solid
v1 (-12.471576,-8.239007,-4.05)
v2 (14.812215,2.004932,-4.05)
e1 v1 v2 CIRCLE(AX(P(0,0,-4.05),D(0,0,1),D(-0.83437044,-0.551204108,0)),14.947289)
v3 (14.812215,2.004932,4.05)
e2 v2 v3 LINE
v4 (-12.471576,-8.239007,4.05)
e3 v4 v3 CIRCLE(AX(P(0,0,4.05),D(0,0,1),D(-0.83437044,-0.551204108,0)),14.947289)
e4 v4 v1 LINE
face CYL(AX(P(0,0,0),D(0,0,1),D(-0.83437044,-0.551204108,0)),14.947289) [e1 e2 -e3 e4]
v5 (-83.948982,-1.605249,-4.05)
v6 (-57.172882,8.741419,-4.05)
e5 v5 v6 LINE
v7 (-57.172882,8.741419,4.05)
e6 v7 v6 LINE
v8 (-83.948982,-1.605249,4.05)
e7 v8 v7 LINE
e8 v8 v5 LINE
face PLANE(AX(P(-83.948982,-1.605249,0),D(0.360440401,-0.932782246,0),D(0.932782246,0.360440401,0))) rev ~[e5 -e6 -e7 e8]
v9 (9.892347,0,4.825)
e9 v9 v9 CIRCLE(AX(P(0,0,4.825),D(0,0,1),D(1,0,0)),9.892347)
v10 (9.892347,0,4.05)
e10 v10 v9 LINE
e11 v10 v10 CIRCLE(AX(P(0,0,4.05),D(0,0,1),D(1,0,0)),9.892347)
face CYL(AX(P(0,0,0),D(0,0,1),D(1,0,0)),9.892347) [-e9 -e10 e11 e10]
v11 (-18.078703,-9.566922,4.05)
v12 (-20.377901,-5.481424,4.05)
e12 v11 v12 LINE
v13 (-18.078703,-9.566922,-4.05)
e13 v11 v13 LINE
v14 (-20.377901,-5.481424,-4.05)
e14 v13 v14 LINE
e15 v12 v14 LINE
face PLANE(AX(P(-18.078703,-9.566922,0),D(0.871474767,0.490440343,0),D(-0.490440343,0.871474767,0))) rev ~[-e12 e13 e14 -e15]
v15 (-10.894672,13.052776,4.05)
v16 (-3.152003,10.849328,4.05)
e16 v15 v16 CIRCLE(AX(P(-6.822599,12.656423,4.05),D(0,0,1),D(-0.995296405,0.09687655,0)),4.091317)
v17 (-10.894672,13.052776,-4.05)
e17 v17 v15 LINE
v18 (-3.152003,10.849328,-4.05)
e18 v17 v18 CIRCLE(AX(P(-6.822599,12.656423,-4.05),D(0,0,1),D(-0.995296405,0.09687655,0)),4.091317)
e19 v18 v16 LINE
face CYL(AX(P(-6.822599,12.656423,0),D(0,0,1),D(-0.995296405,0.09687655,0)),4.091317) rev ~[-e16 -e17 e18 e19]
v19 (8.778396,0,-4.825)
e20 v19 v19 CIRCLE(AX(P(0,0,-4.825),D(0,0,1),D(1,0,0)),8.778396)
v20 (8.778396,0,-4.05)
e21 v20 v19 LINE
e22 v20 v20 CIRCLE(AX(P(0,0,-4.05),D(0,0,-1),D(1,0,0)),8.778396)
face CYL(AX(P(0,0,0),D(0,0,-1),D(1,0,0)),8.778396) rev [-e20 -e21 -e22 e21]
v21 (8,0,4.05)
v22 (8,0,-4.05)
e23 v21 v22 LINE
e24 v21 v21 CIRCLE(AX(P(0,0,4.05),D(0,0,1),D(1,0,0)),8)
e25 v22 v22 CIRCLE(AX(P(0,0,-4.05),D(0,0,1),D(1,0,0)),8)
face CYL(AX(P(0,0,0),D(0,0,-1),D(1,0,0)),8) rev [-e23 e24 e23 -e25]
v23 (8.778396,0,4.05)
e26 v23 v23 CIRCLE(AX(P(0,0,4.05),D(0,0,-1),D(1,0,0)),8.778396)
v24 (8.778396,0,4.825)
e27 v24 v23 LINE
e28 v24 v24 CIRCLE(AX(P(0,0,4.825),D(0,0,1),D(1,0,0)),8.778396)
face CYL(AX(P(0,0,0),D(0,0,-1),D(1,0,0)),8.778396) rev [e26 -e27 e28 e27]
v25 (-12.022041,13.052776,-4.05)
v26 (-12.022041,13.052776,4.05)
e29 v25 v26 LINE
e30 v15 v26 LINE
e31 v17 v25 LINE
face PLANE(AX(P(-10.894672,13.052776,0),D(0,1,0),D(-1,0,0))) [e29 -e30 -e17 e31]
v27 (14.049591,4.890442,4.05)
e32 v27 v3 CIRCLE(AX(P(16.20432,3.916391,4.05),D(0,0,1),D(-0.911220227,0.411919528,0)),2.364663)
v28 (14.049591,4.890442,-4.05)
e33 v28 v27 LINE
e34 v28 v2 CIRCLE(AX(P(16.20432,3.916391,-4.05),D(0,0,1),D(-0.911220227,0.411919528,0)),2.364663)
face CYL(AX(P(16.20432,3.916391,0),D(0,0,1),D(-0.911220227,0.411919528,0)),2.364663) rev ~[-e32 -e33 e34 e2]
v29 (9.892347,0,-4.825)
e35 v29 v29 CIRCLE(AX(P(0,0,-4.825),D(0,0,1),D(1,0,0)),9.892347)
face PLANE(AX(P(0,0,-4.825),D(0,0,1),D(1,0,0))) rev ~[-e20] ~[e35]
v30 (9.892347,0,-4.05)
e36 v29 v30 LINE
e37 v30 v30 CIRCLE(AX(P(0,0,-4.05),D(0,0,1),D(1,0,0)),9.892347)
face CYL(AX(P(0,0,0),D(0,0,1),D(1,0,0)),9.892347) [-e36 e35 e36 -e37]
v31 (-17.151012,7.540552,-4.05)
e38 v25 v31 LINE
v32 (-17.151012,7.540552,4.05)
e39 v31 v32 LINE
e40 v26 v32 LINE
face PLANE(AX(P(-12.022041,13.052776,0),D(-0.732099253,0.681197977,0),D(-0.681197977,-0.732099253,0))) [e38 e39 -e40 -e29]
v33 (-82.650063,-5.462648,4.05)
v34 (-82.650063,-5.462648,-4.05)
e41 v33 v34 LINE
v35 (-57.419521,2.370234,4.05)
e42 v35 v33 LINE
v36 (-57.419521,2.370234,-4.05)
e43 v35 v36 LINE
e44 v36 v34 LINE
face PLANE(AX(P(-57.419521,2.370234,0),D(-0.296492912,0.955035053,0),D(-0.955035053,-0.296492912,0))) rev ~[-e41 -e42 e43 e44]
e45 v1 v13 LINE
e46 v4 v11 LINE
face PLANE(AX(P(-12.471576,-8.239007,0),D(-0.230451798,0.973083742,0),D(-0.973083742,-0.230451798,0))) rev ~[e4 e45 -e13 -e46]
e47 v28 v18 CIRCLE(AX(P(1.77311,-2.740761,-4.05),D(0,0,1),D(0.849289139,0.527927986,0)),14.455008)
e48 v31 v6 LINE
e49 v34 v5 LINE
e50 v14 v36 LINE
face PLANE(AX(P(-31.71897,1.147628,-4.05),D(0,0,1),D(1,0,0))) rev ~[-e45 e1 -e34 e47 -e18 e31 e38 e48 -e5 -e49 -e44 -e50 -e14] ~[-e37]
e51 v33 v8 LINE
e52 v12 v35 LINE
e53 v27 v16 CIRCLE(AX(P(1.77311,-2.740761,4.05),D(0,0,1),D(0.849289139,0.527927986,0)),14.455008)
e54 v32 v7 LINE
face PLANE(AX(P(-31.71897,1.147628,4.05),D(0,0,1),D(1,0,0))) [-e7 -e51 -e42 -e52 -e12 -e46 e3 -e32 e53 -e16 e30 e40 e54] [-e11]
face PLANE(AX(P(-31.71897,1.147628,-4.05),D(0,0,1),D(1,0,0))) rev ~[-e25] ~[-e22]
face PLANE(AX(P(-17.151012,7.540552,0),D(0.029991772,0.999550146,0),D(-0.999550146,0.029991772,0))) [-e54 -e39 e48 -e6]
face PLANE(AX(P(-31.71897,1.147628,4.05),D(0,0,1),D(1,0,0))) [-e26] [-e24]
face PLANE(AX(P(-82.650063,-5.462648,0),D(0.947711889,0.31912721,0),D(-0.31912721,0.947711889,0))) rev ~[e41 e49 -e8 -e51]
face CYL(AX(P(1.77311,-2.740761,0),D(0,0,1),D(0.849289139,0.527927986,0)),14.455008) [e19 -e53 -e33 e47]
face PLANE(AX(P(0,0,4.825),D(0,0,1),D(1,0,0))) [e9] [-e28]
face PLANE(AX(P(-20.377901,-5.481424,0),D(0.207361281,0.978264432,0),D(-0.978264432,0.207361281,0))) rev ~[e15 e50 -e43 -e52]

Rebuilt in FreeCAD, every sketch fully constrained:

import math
import FreeCAD as App
import Part
import Sketcher
from FreeCAD import Vector
Q = App.Units.Quantity

doc = App.newDocument("Part")
params = doc.addObject("Spreadsheet::Sheet", "Params")
for row, (alias, value) in enumerate([
    ("sketch1_diameter", "16 mm"),
    ("pad1_length", "8.1 mm"),
    ("pad2_length", "9.65 mm"),
], start=1):
    params.set(f"A{row}", alias)
    params.set(f"B{row}", "=" + value)
    params.setAlias(f"B{row}", alias)

body = doc.addObject("PartDesign::Body", "Body")

# Sketch on XY plane
sketch1 = body.newObject("Sketcher::SketchObject", "Sketch")
sketch1.AttachmentSupport = (doc.getObject("XY_Plane"), [""])
sketch1.MapMode = "FlatFace"
sketch1.addGeometry([
    Part.ArcOfCircle(Part.Circle(Vector(0, 0, 0), Vector(0, 0, 1), 14.947289), math.radians(-146.550341), math.radians(7.708516)),  # 0
    Part.ArcOfCircle(Part.Circle(Vector(16.20432, 3.916391, 0), Vector(0, 0, 1), 2.364663), math.radians(155.674526), math.radians(233.934359)),  # 1
    Part.ArcOfCircle(Part.Circle(Vector(1.77311, -2.740761, 0), Vector(0, 0, 1), 14.455008), math.radians(31.865564), math.radians(109.920755)),  # 2
    Part.ArcOfCircle(Part.Circle(Vector(-6.822599, 12.656423, 0), Vector(0, 0, 1), 4.091317), math.radians(174.440663), math.radians(333.788213)),  # 3
    Part.LineSegment(Vector(-10.894672, 13.052776, 0), Vector(-12.022041, 13.052776, 0)),  # 4
    Part.LineSegment(Vector(-12.022041, 13.052776, 0), Vector(-17.151012, 7.540552, 0)),  # 5
    Part.LineSegment(Vector(-17.151012, 7.540552, 0), Vector(-57.172882, 8.741419, 0)),  # 6
    Part.LineSegment(Vector(-57.172882, 8.741419, 0), Vector(-83.948982, -1.605249, 0)),  # 7
    Part.LineSegment(Vector(-83.948982, -1.605249, 0), Vector(-82.650063, -5.462648, 0)),  # 8
    Part.LineSegment(Vector(-82.650063, -5.462648, 0), Vector(-57.419521, 2.370234, 0)),  # 9
    Part.LineSegment(Vector(-57.419521, 2.370234, 0), Vector(-20.377901, -5.481424, 0)),  # 10
    Part.LineSegment(Vector(-20.377901, -5.481424, 0), Vector(-18.078703, -9.566922, 0)),  # 11
    Part.LineSegment(Vector(-18.078703, -9.566922, 0), Vector(-12.471576, -8.239007, 0)),  # 12
    Part.Circle(Vector(0, 0, 0), Vector(0, 0, 1), 8),  # 13
], False)
sketch1.addConstraint([
    Sketcher.Constraint("Coincident", 0, 2, 1, 2),
    Sketcher.Constraint("Coincident", 1, 1, 2, 1),
    Sketcher.Constraint("Coincident", 2, 2, 3, 2),
    Sketcher.Constraint("Coincident", 3, 1, 4, 1),
    Sketcher.Constraint("Coincident", 4, 2, 5, 1),
    Sketcher.Constraint("Coincident", 5, 2, 6, 1),
    Sketcher.Constraint("Coincident", 6, 2, 7, 1),
    Sketcher.Constraint("Coincident", 7, 2, 8, 1),
    Sketcher.Constraint("Coincident", 8, 2, 9, 1),
    Sketcher.Constraint("Coincident", 9, 2, 10, 1),
    Sketcher.Constraint("Coincident", 10, 2, 11, 1),
    Sketcher.Constraint("Coincident", 11, 2, 12, 1),
    Sketcher.Constraint("Coincident", 12, 2, 0, 1),
    Sketcher.Constraint("Horizontal", 4),
    Sketcher.Constraint("Coincident", 0, 3, -1, 1),
    Sketcher.Constraint("Coincident", 13, 3, -1, 1),
    Sketcher.Constraint("Diameter", 13, Q("16 mm")),
    Sketcher.Constraint("Radius", 0, Q("14.947289 mm")),
    Sketcher.Constraint("Radius", 2, Q("14.455008 mm")),
    Sketcher.Constraint("Radius", 1, Q("2.364663 mm")),
    Sketcher.Constraint("Radius", 3, Q("4.091317 mm")),
    Sketcher.Constraint("DistanceX", 4, 2, 4, 1, Q("1.127369 mm")),
    Sketcher.Constraint("DistanceX", 3, 3, -1, 1, Q("6.822599 mm")),
    Sketcher.Constraint("DistanceX", 10, 2, -1, 1, Q("20.377901 mm")),
    Sketcher.Constraint("DistanceX", 7, 2, 6, 2, Q("26.7761 mm")),
    Sketcher.Constraint("DistanceY", 7, 2, 5, 2, Q("9.145801 mm")),
    Sketcher.Constraint("DistanceY", 8, 2, 7, 2, Q("3.857399 mm")),
    Sketcher.Constraint("DistanceY", 10, 2, 4, 2, Q("18.5342 mm")),
    Sketcher.Constraint("DistanceX", 10, 2, 11, 2, Q("2.299198 mm")),
    Sketcher.Constraint("DistanceY", 11, 2, 10, 2, Q("4.085498 mm")),
    Sketcher.Constraint("Distance", 5, Q("7.52934 mm")),
    Sketcher.Constraint("Distance", 10, Q("37.864629 mm")),
    Sketcher.Constraint("DistanceX", -1, 1, 1, 3, Q("16.20432 mm")),
    Sketcher.Constraint("DistanceY", -1, 1, 1, 3, Q("3.916391 mm")),
    Sketcher.Constraint("DistanceX", -1, 1, 2, 3, Q("1.77311 mm")),
    Sketcher.Constraint("DistanceY", 2, 3, -1, 1, Q("2.740761 mm")),
    Sketcher.Constraint("DistanceX", 4, 2, -1, 1, Q("12.022041 mm")),
    Sketcher.Constraint("DistanceY", -1, 1, 6, 2, Q("8.741419 mm")),
    Sketcher.Constraint("DistanceX", 7, 2, -1, 1, Q("83.948982 mm")),
    Sketcher.Constraint("DistanceY", 7, 2, -1, 1, Q("1.605249 mm")),
    Sketcher.Constraint("DistanceX", 9, 2, -1, 1, Q("57.419521 mm")),
    Sketcher.Constraint("DistanceY", 0, 2, 3, 3, Q("10.651491 mm")),
    Sketcher.Constraint("DistanceX", 7, 2, 8, 2, Q("1.298919 mm")),
    Sketcher.Constraint("Distance", 12, Q("5.762225 mm")),
])
sketch1.setExpression("Constraints[16]", "Params.sketch1_diameter")
pad1 = body.newObject("PartDesign::Pad", "Pad")
pad1.Profile = sketch1
pad1.setExpression("Length", "Params.pad1_length")
pad1.Midplane = True

# Sketch on XY plane
sketch2 = body.newObject("Sketcher::SketchObject", "Sketch001")
sketch2.AttachmentSupport = (doc.getObject("XY_Plane"), [""])
sketch2.MapMode = "FlatFace"
sketch2.addGeometry([
    Part.Circle(Vector(0, 0, 0), Vector(0, 0, 1), 9.892347),
    Part.Circle(Vector(0, 0, 0), Vector(0, 0, 1), 8.778396),
], False)
sketch2.addConstraint([
    Sketcher.Constraint("Coincident", 0, 3, -1, 1),
    Sketcher.Constraint("Coincident", 1, 3, -1, 1),
    Sketcher.Constraint("Diameter", 0, Q("19.784694 mm")),
    Sketcher.Constraint("Diameter", 1, Q("17.556792 mm")),
])
pad2 = body.newObject("PartDesign::Pad", "Pad001")
pad2.Profile = sketch2
pad2.setExpression("Length", "Params.pad2_length")
pad2.Midplane = True

doc.recompute()
